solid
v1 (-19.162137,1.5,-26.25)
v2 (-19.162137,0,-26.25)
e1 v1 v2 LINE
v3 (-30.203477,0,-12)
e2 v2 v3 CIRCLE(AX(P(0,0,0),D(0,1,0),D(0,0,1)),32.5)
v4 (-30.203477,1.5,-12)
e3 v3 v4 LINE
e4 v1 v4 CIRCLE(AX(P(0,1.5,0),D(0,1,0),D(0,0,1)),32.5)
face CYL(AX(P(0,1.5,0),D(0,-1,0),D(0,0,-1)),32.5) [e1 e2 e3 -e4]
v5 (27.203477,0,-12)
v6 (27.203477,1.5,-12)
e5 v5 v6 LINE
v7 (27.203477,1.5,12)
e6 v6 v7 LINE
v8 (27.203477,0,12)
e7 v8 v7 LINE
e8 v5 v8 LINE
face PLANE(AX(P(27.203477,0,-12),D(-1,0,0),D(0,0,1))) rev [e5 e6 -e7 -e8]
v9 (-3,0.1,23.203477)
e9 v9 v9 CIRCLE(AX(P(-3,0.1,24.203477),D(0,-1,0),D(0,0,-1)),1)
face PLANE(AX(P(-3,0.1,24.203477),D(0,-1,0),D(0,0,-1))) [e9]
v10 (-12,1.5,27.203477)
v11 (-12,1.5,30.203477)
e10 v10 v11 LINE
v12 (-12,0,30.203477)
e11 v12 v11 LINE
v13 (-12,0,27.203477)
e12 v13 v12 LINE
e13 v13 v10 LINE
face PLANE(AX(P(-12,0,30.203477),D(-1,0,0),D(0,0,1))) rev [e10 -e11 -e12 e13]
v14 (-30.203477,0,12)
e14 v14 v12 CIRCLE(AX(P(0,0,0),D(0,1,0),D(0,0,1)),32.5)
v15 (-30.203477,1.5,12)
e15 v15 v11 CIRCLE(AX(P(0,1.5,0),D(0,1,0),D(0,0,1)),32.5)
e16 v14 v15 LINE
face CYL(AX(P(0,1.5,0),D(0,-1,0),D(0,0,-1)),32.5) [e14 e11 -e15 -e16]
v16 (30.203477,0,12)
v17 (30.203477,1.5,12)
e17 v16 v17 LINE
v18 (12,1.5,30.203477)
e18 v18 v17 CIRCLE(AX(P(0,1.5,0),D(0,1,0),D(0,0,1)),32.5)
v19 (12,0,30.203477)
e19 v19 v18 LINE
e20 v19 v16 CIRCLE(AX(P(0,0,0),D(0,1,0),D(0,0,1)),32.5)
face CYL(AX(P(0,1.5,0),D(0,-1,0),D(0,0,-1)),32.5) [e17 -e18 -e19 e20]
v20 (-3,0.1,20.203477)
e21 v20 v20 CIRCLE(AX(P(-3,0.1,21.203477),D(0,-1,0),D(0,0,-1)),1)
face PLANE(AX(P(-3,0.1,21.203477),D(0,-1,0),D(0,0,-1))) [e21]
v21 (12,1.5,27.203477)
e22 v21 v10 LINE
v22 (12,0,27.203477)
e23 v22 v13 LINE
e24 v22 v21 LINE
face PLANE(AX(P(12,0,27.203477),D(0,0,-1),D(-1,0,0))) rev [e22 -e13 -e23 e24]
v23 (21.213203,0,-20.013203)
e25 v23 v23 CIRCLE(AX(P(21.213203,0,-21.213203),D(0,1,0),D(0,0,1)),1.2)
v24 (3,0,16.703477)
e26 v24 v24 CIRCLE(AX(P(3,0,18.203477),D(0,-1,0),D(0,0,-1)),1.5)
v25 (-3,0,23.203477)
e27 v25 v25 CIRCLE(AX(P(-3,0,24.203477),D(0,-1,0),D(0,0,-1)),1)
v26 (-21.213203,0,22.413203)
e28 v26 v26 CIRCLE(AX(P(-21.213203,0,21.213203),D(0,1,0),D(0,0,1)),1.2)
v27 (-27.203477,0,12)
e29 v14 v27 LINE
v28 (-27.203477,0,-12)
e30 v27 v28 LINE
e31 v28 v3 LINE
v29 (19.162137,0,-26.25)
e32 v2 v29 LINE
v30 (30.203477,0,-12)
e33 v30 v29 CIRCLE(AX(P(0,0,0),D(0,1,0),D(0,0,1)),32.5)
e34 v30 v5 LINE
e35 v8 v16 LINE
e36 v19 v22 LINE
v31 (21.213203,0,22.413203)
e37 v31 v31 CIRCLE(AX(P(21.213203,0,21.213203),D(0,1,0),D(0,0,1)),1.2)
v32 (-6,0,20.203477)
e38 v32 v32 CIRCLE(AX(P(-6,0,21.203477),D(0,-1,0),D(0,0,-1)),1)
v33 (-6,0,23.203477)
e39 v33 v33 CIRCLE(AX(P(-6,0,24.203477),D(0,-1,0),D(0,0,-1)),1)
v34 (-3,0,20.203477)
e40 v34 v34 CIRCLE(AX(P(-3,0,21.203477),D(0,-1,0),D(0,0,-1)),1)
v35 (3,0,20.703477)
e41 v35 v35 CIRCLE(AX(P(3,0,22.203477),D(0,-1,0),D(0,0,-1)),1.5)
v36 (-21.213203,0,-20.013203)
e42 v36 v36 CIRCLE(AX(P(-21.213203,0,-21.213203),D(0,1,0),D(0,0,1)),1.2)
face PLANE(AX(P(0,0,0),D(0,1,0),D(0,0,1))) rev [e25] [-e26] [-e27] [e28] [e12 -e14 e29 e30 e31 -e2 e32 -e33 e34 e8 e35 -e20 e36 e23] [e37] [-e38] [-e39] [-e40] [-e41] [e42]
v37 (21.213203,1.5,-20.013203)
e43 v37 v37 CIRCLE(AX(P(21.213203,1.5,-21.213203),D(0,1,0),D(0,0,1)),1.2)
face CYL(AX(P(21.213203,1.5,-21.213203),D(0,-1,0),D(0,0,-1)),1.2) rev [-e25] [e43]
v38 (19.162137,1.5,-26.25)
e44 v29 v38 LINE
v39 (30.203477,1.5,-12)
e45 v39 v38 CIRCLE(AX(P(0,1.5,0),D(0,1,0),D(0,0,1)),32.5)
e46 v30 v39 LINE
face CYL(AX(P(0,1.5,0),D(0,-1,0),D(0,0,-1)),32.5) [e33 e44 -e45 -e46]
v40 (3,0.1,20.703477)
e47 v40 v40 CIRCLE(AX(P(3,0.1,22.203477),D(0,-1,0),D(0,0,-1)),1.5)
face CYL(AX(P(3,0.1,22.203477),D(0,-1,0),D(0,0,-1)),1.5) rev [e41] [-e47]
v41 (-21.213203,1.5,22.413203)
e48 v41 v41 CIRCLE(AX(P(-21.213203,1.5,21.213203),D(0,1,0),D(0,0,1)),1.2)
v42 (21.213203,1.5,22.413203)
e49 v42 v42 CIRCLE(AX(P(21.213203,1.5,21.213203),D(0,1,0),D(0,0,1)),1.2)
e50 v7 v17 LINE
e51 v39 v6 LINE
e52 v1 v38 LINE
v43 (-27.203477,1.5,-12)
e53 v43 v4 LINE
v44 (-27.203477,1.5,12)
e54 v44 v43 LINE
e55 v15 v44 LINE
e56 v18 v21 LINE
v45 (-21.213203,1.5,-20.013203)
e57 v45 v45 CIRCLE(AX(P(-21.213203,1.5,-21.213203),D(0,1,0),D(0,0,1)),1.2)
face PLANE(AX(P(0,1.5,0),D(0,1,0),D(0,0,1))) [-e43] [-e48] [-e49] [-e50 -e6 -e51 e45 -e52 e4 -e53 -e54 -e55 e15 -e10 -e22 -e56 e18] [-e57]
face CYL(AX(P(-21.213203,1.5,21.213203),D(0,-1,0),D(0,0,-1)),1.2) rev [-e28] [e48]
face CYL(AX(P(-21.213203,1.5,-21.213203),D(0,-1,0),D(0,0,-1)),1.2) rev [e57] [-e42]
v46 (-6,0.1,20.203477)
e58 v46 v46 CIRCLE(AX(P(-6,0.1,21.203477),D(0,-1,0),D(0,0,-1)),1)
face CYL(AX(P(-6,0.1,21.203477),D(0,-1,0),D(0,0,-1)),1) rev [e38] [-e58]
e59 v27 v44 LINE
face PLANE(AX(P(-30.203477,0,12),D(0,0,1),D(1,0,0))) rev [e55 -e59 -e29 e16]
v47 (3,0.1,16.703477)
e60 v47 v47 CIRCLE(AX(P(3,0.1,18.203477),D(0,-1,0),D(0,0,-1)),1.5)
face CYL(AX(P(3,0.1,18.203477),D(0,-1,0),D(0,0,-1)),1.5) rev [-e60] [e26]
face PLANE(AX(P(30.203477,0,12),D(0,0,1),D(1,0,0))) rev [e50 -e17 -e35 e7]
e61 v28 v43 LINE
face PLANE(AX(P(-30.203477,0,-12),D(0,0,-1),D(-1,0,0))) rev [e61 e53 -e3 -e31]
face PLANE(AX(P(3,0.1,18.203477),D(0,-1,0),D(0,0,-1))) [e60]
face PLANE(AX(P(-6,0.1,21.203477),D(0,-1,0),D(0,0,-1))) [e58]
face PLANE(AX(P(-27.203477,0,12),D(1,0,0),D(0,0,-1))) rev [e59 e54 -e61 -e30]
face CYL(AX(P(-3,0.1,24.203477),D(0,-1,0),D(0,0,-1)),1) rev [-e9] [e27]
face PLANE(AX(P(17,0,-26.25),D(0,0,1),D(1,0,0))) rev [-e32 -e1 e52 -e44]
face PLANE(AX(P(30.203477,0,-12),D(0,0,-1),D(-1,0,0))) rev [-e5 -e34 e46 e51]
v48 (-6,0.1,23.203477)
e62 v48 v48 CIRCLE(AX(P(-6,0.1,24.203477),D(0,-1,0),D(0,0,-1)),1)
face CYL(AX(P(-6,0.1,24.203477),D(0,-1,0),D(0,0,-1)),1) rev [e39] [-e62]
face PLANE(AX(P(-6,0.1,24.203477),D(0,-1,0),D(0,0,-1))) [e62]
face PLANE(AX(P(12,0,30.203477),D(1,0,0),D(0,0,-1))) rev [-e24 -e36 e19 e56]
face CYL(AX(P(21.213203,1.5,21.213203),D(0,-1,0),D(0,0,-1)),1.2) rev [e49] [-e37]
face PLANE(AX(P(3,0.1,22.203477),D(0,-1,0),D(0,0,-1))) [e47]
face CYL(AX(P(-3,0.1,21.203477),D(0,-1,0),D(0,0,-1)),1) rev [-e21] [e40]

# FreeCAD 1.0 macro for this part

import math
import FreeCAD as App
import Part
import Sketcher
from FreeCAD import Vector

doc = App.newDocument("Part")
body = doc.addObject("PartDesign::Body", "Body")

# Sketch on XZ plane
sketch1 = body.newObject("Sketcher::SketchObject", "Sketch")
sketch1.AttachmentSupport = (doc.getObject("XZ_Plane"), [""])
sketch1.MapMode = "FlatFace"
sketch1.addGeometry([
    Part.Circle(Vector(0, 0, 0), Vector(0, 0, 1), 32.5),  # 0
    Part.Circle(Vector(-21.2, -21.2, 0), Vector(0, 0, 1), 1.2),  # 1
    Part.Circle(Vector(-21.2, 21.2, 0), Vector(0, 0, 1), 1.2),  # 2
    Part.Circle(Vector(21.2, -21.2, 0), Vector(0, 0, 1), 1.2),  # 3
    Part.Circle(Vector(21.2, 21.2, 0), Vector(0, 0, 1), 1.2),  # 4
], False)
sketch1.addConstraint([
    Sketcher.Constraint("Coincident", 0, 3, -1, 1),
    Sketcher.Constraint("Equal", 1, 2),
    Sketcher.Constraint("Equal", 2, 3),
    Sketcher.Constraint("Equal", 3, 4),
    Sketcher.Constraint("Symmetric", 2, 3, 3, 3, -1, 1),
    Sketcher.Constraint("Symmetric", 1, 3, 4, 3, -1, 1),
    Sketcher.Constraint("Symmetric", 1, 3, 3, 3, -2),
    Sketcher.Constraint("Diameter", 0, 65.0),
    Sketcher.Constraint("Diameter", 1, 2.4),
    Sketcher.Constraint("DistanceX", 1, 3, -1, 1, 21.213203),
    Sketcher.Constraint("DistanceY", 1, 3, -1, 1, 21.213203),
])
pad1 = body.newObject("PartDesign::Pad", "Pad")
pad1.Profile = sketch1
pad1.Length = 1.5
pad1.Reversed = True

# Sketch on XZ plane
sketch2 = body.newObject("Sketcher::SketchObject", "Sketch001")
sketch2.AttachmentSupport = (doc.getObject("XZ_Plane"), [""])
sketch2.MapMode = "FlatFace"
sketch2.AttachmentOffset = App.Placement(Vector(0, 0, -1.5), App.Rotation())
sketch2.addGeometry([
    Part.LineSegment(Vector(30.2, -12, 0), Vector(27.2, -12, 0)),  # 0
    Part.LineSegment(Vector(27.2, -12, 0), Vector(27.2, 12, 0)),  # 1
    Part.LineSegment(Vector(27.2, 12, 0), Vector(30.2, 12, 0)),  # 2
    Part.ArcOfCircle(Part.Circle(Vector(0, 0, 0), Vector(0, 0, 1), 32.5), math.radians(-22), math.radians(22)),  # 3
    Part.LineSegment(Vector(12, 27.2, 0), Vector(-12, 27.2, 0)),  # 4
    Part.LineSegment(Vector(-12, 27.2, 0), Vector(-12, 30.2, 0)),  # 5
    Part.ArcOfCircle(Part.Circle(Vector(0, 0, 0), Vector(0, 0, 1), 32.5), math.radians(68), math.radians(112)),  # 6
    Part.LineSegment(Vector(12, 30.2, 0), Vector(12, 27.2, 0)),  # 7
    Part.LineSegment(Vector(-27.2, 12, 0), Vector(-27.2, -12, 0)),  # 8
    Part.LineSegment(Vector(-27.2, -12, 0), Vector(-30.2, -12, 0)),  # 9
    Part.ArcOfCircle(Part.Circle(Vector(0, 0, 0), Vector(0, 0, 1), 32.5), math.radians(158), math.radians(202)),  # 10
    Part.LineSegment(Vector(-30.2, 12, 0), Vector(-27.2, 12, 0)),  # 11
    Part.LineSegment(Vector(-12, -27.2, 0), Vector(12, -27.2, 0)),  # 12
    Part.LineSegment(Vector(12, -27.2, 0), Vector(12, -30.2, 0)),  # 13
    Part.ArcOfCircle(Part.Circle(Vector(0, 0, 0), Vector(0, 0, 1), 32.5), math.radians(-112), math.radians(-68)),  # 14
    Part.LineSegment(Vector(-12, -30.2, 0), Vector(-12, -27.2, 0)),  # 15
], False)
sketch2.addConstraint([
    Sketcher.Constraint("Coincident", 0, 2, 1, 1),
    Sketcher.Constraint("Coincident", 1, 2, 2, 1),
    Sketcher.Constraint("Coincident", 2, 2, 3, 2),
    Sketcher.Constraint("Coincident", 3, 1, 0, 1),
    Sketcher.Constraint("Coincident", 4, 2, 5, 1),
    Sketcher.Constraint("Coincident", 5, 2, 6, 2),
    Sketcher.Constraint("Coincident", 6, 1, 7, 1),
    Sketcher.Constraint("Coincident", 7, 2, 4, 1),
    Sketcher.Constraint("Coincident", 8, 2, 9, 1),
    Sketcher.Constraint("Coincident", 9, 2, 10, 2),
    Sketcher.Constraint("Coincident", 10, 1, 11, 1),
    Sketcher.Constraint("Coincident", 11, 2, 8, 1),
    Sketcher.Constraint("Coincident", 12, 2, 13, 1),
    Sketcher.Constraint("Coincident", 13, 2, 14, 2),
    Sketcher.Constraint("Coincident", 14, 1, 15, 1),
    Sketcher.Constraint("Coincident", 15, 2, 12, 1),
    Sketcher.Constraint("Horizontal", 0),
    Sketcher.Constraint("Vertical", 1),
    Sketcher.Constraint("Horizontal", 2),
    Sketcher.Constraint("Horizontal", 4),
    Sketcher.Constraint("Vertical", 5),
    Sketcher.Constraint("Vertical", 7),
    Sketcher.Constraint("Vertical", 8),
    Sketcher.Constraint("Horizontal", 9),
    Sketcher.Constraint("Horizontal", 11),
    Sketcher.Constraint("Horizontal", 12),
    Sketcher.Constraint("Vertical", 13),
    Sketcher.Constraint("Vertical", 15),
    Sketcher.Constraint("Coincident", 3, 3, -1, 1),
    Sketcher.Constraint("Coincident", 6, 3, -1, 1),
    Sketcher.Constraint("Coincident", 10, 3, -1, 1),
    Sketcher.Constraint("Coincident", 14, 3, -1, 1),
    Sketcher.Constraint("Equal", 3, 6),
    Sketcher.Constraint("Equal", 6, 10),
    Sketcher.Constraint("Equal", 10, 14),
    Sketcher.Constraint("Symmetric", 1, 2, 8, 2, -1, 1),
    Sketcher.Constraint("Symmetric", 4, 2, 12, 2, -1, 1),
    Sketcher.Constraint("Horizontal", 5, 2, 6, 1),
    Sketcher.Constraint("Horizontal", 3, 1, 8, 2),
    Sketcher.Constraint("Horizontal", 2, 2, 10, 1),
    Sketcher.Constraint("Horizontal", 13, 2, 14, 1),
    Sketcher.Constraint("Equal", 12, 1),
    Sketcher.Constraint("Equal", 11, 5),
    Sketcher.Constraint("Radius", 3, 32.5),
    Sketcher.Constraint("DistanceX", 0, 2, 0, 1, 3.0),
    Sketcher.Constraint("DistanceX", 4, 2, 4, 1, 24.0),
])
pocket1 = body.newObject("PartDesign::Pocket", "Pocket")
pocket1.Profile = sketch2
pocket1.Type = "ThroughAll"
pocket1.Reversed = True

# Sketch on XZ plane
sketch3 = body.newObject("Sketcher::SketchObject", "Sketch002")
sketch3.AttachmentSupport = (doc.getObject("XZ_Plane"), [""])
sketch3.MapMode = "FlatFace"
sketch3.AttachmentOffset = App.Placement(Vector(0, 0, -1.5), App.Rotation())
sketch3.addGeometry([
    Part.LineSegment(Vector(-27, -26, 0), Vector(28, -26, 0)),
    Part.LineSegment(Vector(28, -26, 0), Vector(-14, -47, 0)),
    Part.LineSegment(Vector(-14, -47, 0), Vector(-27, -26, 0)),
], False)
sketch3.addConstraint([
    Sketcher.Constraint("Coincident", 0, 2, 1, 1),
    Sketcher.Constraint("Coincident", 1, 2, 2, 1),
    Sketcher.Constraint("Coincident", 2, 2, 0, 1),
    Sketcher.Constraint("Horizontal", 0),
    Sketcher.Constraint("DistanceY", 0, 2, -1, 1, 26.25),
    Sketcher.Constraint("DistanceX", 0, 1, 0, 2, 55.299068),
    Sketcher.Constraint("DistanceX", -1, 1, 0, 2, 28.149412),
    Sketcher.Constraint("DistanceX", 2, 2, 1, 2, 12.909281),
    Sketcher.Constraint("Distance", 1, 47.084576),
])
pocket2 = body.newObject("PartDesign::Pocket", "Pocket001")
pocket2.Profile = sketch3
pocket2.Type = "ThroughAll"
pocket2.Reversed = True

# Sketch on XZ plane
sketch4 = body.newObject("Sketcher::SketchObject", "Sketch003")
sketch4.AttachmentSupport = (doc.getObject("XZ_Plane"), [""])
sketch4.MapMode = "FlatFace"
sketch4.addGeometry([
    Part.Circle(Vector(3, 22.2, 0), Vector(0, 0, 1), 1.5),  # 0
    Part.Circle(Vector(3, 18.2, 0), Vector(0, 0, 1), 1.5),  # 1
    Part.Circle(Vector(-6, 24.2, 0), Vector(0, 0, 1), 1),  # 2
    Part.Circle(Vector(-3, 24.2, 0), Vector(0, 0, 1), 1),  # 3
    Part.Circle(Vector(-3, 21.2, 0), Vector(0, 0, 1), 1),  # 4
    Part.Circle(Vector(-6, 21.2, 0), Vector(0, 0, 1), 1),  # 5
], False)
sketch4.addConstraint([
    Sketcher.Constraint("Equal", 0, 1),
    Sketcher.Constraint("Equal", 2, 3),
    Sketcher.Constraint("Equal", 3, 4),
    Sketcher.Constraint("Equal", 4, 5),
    Sketcher.Constraint("Horizontal", 2, 3, 3, 3),
    Sketcher.Constraint("Horizontal", 4, 3, 5, 3),
    Sketcher.Constraint("Vertical", 0, 3, 1, 3),
    Sketcher.Constraint("Vertical", 3, 3, 4, 3),
    Sketcher.Constraint("Vertical", 2, 3, 5, 3),
    Sketcher.Constraint("Diameter", 0, 3.0),
    Sketcher.Constraint("Diameter", 2, 2.0),
    Sketcher.Constraint("DistanceX", -1, 1, 0, 3, 3.0),
    Sketcher.Constraint("DistanceX", 2, 3, -1, 1, 6.0),
    Sketcher.Constraint("DistanceX", 3, 3, -1, 1, 3.0),
    Sketcher.Constraint("DistanceY", 1, 3, 0, 3, 4.0),
    Sketcher.Constraint("DistanceY", 0, 3, 2, 3, 2.0),
    Sketcher.Constraint("DistanceY", 4, 3, 3, 3, 3.0),
    Sketcher.Constraint("DistanceY", -1, 1, 0, 3, 22.203477),
])
pocket3 = body.newObject("PartDesign::Pocket", "Pocket002")
pocket3.Profile = sketch4
pocket3.Length = 0.1

doc.recompute()
